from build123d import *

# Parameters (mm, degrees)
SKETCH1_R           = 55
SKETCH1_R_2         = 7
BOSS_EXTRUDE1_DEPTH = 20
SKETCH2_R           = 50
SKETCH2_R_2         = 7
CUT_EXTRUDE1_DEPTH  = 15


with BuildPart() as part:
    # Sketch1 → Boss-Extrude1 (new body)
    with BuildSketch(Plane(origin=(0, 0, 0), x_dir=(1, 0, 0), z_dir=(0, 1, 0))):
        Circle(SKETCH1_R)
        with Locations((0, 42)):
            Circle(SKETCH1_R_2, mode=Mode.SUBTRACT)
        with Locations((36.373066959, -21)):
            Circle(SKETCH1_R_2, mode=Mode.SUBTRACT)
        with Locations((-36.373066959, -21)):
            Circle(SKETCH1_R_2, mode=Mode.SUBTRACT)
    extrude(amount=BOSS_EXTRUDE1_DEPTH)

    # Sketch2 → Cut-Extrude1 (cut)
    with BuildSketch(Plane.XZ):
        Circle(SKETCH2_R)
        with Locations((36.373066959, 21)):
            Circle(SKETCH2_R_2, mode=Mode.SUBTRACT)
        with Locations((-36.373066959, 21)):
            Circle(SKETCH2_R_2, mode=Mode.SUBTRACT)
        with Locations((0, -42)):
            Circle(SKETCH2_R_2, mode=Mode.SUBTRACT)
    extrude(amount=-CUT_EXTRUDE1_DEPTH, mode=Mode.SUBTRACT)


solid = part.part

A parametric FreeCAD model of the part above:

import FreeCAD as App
import Part
import Sketcher

doc = App.newDocument("Part")
body = doc.addObject("PartDesign::Body", "Body")

# Sketch on XZ plane
sketch1 = body.newObject("Sketcher::SketchObject", "Sketch")
sketch1.AttachmentSupport = (doc.getObject("XZ_Plane"), [""])
sketch1.MapMode = "FlatFace"
sketch1.addGeometry([
    Part.Circle(App.Vector(0, 0, 0), App.Vector(0, 0, 1), 55),
    Part.Circle(App.Vector(-36, 21, 0), App.Vector(0, 0, 1), 7),
    Part.Circle(App.Vector(36, 21, 0), App.Vector(0, 0, 1), 7),
    Part.Circle(App.Vector(0, -42, 0), App.Vector(0, 0, 1), 7),
], False)
sketch1.addConstraint([
    Sketcher.Constraint("Coincident", 0, 3, -1, 1),
    Sketcher.Constraint("Equal", 1, 2),
    Sketcher.Constraint("Equal", 2, 3),
    Sketcher.Constraint("Symmetric", 1, 3, 2, 3, -2),
    Sketcher.Constraint("PointOnObject", 3, 3, -2),
    Sketcher.Constraint("Diameter", 0, 110.0),
    Sketcher.Constraint("Diameter", 1, 14.0),
    Sketcher.Constraint("DistanceY", -1, 1, 1, 3, 21.0),
    Sketcher.Constraint("DistanceY", 3, 3, -1, 1, 42.0),
    Sketcher.Constraint("DistanceX", 1, 3, -1, 1, 36.373067),
])
pad1 = body.newObject("PartDesign::Pad", "Pad")
pad1.Profile = sketch1
pad1.Length = 20
pad1.Reversed = True

# Sketch on XZ plane
sketch2 = body.newObject("Sketcher::SketchObject", "Sketch001")
sketch2.AttachmentSupport = (doc.getObject("XZ_Plane"), [""])
sketch2.MapMode = "FlatFace"
sketch2.addGeometry([
    Part.Circle(App.Vector(0, 0, 0), App.Vector(0, 0, 1), 50),
    Part.Circle(App.Vector(0, -42, 0), App.Vector(0, 0, 1), 7),
    Part.Circle(App.Vector(-36, 21, 0), App.Vector(0, 0, 1), 7),
    Part.Circle(App.Vector(36, 21, 0), App.Vector(0, 0, 1), 7),
], False)
sketch2.addConstraint([
    Sketcher.Constraint("Coincident", 0, 3, -1, 1),
    Sketcher.Constraint("Equal", 1, 2),
    Sketcher.Constraint("Equal", 2, 3),
    Sketcher.Constraint("Symmetric", 2, 3, 3, 3, -2),
    Sketcher.Constraint("PointOnObject", 1, 3, -2),
    Sketcher.Constraint("Diameter", 0, 100.0),
    Sketcher.Constraint("Diameter", 1, 14.0),
    Sketcher.Constraint("DistanceY", 1, 3, -1, 1, 42.0),
    Sketcher.Constraint("DistanceY", -1, 1, 2, 3, 21.0),
    Sketcher.Constraint("DistanceX", 2, 3, -1, 1, 36.373067),
])
pocket1 = body.newObject("PartDesign::Pocket", "Pocket")
pocket1.Profile = sketch2
pocket1.Length = 15

doc.recompute()
